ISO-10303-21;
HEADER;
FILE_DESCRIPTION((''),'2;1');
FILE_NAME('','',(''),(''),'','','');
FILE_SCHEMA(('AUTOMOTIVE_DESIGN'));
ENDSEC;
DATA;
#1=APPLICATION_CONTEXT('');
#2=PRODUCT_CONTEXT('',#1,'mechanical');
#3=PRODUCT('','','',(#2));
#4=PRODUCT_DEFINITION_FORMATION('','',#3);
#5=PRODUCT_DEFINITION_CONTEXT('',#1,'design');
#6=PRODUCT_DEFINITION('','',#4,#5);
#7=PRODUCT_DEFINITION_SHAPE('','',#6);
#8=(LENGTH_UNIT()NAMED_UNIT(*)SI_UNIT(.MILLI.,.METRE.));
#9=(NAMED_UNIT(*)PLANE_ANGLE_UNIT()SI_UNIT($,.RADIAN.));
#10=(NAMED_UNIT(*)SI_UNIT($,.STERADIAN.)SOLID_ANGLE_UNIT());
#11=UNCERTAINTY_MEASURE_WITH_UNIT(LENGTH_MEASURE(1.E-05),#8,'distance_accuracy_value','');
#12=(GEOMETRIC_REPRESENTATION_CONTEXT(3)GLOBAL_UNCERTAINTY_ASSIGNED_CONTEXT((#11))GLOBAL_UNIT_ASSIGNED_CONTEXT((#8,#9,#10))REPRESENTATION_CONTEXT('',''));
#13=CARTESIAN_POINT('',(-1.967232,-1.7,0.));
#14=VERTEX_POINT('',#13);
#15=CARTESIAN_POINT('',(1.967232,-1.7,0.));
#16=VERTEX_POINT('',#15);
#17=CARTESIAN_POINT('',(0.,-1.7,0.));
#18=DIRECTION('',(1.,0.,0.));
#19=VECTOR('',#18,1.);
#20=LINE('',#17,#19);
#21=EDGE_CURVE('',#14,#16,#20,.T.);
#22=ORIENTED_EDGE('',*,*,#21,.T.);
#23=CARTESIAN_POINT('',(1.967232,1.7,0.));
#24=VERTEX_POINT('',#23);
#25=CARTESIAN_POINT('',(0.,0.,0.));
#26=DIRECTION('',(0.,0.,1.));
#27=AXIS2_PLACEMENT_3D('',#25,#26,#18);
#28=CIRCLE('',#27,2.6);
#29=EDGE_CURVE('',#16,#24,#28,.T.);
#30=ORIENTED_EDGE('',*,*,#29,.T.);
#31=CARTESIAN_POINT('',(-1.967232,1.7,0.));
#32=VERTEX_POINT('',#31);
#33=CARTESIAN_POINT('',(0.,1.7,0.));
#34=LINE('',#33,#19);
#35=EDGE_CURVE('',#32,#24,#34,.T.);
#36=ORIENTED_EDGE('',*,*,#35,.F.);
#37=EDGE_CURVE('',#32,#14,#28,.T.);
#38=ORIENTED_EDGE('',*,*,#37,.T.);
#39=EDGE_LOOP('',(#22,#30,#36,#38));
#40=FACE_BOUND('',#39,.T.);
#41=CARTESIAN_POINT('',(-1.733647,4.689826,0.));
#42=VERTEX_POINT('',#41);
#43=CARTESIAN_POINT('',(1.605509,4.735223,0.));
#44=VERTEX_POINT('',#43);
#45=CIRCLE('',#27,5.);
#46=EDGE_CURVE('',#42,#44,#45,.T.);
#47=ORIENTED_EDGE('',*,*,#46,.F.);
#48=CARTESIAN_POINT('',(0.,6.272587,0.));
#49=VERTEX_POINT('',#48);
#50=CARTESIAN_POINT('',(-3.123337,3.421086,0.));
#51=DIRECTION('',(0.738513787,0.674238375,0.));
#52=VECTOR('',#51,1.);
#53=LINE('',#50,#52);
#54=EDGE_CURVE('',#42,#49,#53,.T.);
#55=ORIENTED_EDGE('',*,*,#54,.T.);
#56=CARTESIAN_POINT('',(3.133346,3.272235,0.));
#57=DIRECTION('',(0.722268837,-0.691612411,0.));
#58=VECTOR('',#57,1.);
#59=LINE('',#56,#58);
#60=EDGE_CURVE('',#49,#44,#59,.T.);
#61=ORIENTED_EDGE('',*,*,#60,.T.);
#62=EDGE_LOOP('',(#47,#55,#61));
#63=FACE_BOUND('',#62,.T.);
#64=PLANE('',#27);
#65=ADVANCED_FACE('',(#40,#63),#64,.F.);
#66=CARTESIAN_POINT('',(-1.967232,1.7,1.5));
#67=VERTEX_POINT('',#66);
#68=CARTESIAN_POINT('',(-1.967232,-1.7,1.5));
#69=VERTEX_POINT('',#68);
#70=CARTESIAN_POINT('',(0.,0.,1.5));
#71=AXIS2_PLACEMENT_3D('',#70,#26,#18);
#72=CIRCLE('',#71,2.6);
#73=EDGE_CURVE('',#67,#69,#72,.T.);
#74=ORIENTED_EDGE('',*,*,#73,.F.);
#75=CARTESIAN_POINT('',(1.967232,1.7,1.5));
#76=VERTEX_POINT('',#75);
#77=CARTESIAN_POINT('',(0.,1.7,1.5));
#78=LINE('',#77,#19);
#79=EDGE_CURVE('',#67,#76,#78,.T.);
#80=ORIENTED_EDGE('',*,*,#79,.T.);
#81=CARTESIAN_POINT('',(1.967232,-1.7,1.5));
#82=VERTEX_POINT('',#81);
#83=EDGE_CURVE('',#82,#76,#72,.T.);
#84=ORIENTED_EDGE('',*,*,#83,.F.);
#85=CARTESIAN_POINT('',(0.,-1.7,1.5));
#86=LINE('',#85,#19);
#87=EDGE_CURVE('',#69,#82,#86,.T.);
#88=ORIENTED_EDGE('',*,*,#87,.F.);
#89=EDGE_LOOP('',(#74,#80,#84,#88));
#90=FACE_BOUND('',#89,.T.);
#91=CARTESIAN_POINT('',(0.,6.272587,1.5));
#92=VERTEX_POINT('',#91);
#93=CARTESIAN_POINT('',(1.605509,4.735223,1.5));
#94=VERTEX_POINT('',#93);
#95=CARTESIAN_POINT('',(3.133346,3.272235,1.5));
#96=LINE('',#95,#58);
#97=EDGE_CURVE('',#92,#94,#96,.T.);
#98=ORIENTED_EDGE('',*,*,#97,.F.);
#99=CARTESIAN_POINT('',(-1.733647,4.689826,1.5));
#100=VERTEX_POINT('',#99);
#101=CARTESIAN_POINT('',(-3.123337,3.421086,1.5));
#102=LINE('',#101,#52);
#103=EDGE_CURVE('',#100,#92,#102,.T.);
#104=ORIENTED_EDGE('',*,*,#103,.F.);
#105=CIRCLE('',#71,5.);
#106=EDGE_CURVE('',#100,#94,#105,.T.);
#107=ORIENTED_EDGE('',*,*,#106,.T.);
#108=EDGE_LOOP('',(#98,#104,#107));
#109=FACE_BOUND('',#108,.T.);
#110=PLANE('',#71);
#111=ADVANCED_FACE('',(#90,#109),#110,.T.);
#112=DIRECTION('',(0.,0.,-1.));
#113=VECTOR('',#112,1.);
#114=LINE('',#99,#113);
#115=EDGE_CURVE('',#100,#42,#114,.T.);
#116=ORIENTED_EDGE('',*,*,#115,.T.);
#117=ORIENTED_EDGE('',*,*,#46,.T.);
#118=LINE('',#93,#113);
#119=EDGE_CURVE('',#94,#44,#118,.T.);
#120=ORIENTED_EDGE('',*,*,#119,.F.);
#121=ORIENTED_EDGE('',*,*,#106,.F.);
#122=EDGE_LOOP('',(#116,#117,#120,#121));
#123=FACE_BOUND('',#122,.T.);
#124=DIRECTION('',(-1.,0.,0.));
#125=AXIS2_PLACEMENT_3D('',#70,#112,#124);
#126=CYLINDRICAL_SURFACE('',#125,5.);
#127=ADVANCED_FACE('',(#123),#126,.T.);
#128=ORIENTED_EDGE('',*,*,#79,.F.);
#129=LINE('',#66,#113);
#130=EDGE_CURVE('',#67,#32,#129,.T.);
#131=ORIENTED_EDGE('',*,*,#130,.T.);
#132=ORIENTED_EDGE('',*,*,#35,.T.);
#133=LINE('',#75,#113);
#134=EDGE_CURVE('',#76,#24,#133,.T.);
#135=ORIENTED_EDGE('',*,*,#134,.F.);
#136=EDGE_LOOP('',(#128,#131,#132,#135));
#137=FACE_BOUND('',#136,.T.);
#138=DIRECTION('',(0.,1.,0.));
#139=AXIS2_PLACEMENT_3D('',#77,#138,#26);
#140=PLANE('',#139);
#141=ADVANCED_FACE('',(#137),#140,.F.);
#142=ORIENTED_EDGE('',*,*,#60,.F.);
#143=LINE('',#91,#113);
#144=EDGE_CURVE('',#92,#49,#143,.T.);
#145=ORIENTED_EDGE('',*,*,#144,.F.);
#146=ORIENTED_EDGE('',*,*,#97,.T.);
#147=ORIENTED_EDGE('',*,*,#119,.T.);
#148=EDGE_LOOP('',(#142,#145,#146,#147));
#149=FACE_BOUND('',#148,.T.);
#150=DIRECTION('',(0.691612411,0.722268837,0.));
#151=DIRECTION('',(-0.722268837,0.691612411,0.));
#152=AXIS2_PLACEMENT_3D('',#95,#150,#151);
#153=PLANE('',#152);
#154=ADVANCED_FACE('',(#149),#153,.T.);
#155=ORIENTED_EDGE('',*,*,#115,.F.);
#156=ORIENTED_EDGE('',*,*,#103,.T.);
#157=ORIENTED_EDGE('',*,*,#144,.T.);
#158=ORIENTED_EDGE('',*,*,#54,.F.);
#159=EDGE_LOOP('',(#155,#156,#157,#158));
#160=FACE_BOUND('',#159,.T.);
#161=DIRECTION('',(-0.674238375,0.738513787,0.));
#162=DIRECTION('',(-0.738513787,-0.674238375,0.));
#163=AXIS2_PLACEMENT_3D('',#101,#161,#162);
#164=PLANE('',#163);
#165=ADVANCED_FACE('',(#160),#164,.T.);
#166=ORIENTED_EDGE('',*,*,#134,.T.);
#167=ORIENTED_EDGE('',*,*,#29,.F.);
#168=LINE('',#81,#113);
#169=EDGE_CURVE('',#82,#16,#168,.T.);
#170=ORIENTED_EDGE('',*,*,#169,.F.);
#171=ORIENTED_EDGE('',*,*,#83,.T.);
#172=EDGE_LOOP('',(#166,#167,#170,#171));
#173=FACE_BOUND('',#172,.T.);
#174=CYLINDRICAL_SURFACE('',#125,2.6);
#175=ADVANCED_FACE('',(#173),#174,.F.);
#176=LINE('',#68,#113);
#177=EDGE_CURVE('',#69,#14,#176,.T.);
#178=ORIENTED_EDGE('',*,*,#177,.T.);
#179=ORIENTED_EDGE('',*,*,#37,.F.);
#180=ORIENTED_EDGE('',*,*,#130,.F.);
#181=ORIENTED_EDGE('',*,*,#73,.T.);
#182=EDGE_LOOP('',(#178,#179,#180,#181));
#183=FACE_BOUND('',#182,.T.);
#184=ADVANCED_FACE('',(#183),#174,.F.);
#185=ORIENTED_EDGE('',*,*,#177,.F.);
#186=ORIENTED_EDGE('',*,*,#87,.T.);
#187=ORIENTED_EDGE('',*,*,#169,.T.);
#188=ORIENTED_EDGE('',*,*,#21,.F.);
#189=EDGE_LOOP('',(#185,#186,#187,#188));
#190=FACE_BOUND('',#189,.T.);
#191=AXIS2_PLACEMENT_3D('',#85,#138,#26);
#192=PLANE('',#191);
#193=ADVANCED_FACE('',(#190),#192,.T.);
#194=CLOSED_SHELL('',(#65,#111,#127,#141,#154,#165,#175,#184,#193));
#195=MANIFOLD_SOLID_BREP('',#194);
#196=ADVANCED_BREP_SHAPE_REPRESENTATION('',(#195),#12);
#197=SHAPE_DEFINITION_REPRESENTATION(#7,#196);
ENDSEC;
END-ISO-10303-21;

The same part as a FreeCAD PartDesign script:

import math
import FreeCAD as App
import Part
import Sketcher
Q = App.Units.Quantity

doc = App.newDocument("Part")
params = doc.addObject("Spreadsheet::Sheet", "Params")
for row, (alias, value) in enumerate([
    ("sketch1_radius", "5 mm"),
    ("sketch1_radius2", "2.6 mm"),
    ("pad1_length", "1.5 mm"),
], start=1):
    params.set(f"A{row}", alias)
    params.set(f"B{row}", "=" + value)
    params.setAlias(f"B{row}", alias)

body = doc.addObject("PartDesign::Body", "Body")

sketch1 = body.newObject("Sketcher::SketchObject", "Sketch")
sketch1.AttachmentSupport = (doc.getObject("XY_Plane"), [""])
sketch1.MapMode = "FlatFace"
sketch1.addGeometry([
    Part.LineSegment(App.Vector(1.605509, 4.735223, 0), App.Vector(0, 6.272587, 0)),
    Part.LineSegment(App.Vector(0, 6.272587, 0), App.Vector(-1.733647, 4.689826, 0)),
    Part.ArcOfCircle(Part.Circle(App.Vector(0, 0, 0), App.Vector(0, 0, 1), 5), math.radians(110.287395), math.radians(431.270425)),
    Part.LineSegment(App.Vector(-1.967232, 1.7, 0), App.Vector(1.967232, 1.7, 0)),
    Part.ArcOfCircle(Part.Circle(App.Vector(0, 0, 0), App.Vector(0, 0, 1), 2.6), math.radians(-40.832217), math.radians(40.832217)),
    Part.LineSegment(App.Vector(1.967232, -1.7, 0), App.Vector(-1.967232, -1.7, 0)),
    Part.ArcOfCircle(Part.Circle(App.Vector(0, 0, 0), App.Vector(0, 0, 1), 2.6), math.radians(139.167783), math.radians(220.832217)),
], False)
sketch1.addConstraint([
    Sketcher.Constraint("Coincident", 0, 2, 1, 1),
    Sketcher.Constraint("Coincident", 1, 2, 2, 1),
    Sketcher.Constraint("Coincident", 2, 2, 0, 1),
    Sketcher.Constraint("Coincident", 3, 2, 4, 2),
    Sketcher.Constraint("Coincident", 4, 1, 5, 1),
    Sketcher.Constraint("Coincident", 5, 2, 6, 2),
    Sketcher.Constraint("Coincident", 6, 1, 3, 1),
    Sketcher.Constraint("Horizontal", 3),
    Sketcher.Constraint("Horizontal", 5),
    Sketcher.Constraint("Coincident", 2, 3, -1, 1),
    Sketcher.Constraint("Coincident", 4, 3, -1, 1),
    Sketcher.Constraint("Coincident", 6, 3, -1, 1),
    Sketcher.Constraint("Equal", 4, 6),
    Sketcher.Constraint("PointOnObject", 0, 2, -2),
    Sketcher.Constraint("Vertical", 3, 2, 4, 1),
    Sketcher.Constraint("Radius", 2, Q("5 mm")),
    Sketcher.Constraint("Radius", 4, Q("2.6 mm")),
    Sketcher.Constraint("DistanceY", -1, 1, 3, 2, Q("1.7 mm")),
    Sketcher.Constraint("Distance", 0, Q("2.22287 mm")),
    Sketcher.Constraint("Distance", 1, Q("2.34748 mm")),
    Sketcher.Constraint("DistanceX", -1, 1, 2, 2, Q("1.605509 mm")),
])
sketch1.setExpression("Constraints[15]", "Params.sketch1_radius")
sketch1.setExpression("Constraints[16]", "Params.sketch1_radius2")
pad1 = body.newObject("PartDesign::Pad", "Pad")
pad1.Profile = sketch1
pad1.setExpression("Length", "Params.pad1_length")

doc.recompute()
